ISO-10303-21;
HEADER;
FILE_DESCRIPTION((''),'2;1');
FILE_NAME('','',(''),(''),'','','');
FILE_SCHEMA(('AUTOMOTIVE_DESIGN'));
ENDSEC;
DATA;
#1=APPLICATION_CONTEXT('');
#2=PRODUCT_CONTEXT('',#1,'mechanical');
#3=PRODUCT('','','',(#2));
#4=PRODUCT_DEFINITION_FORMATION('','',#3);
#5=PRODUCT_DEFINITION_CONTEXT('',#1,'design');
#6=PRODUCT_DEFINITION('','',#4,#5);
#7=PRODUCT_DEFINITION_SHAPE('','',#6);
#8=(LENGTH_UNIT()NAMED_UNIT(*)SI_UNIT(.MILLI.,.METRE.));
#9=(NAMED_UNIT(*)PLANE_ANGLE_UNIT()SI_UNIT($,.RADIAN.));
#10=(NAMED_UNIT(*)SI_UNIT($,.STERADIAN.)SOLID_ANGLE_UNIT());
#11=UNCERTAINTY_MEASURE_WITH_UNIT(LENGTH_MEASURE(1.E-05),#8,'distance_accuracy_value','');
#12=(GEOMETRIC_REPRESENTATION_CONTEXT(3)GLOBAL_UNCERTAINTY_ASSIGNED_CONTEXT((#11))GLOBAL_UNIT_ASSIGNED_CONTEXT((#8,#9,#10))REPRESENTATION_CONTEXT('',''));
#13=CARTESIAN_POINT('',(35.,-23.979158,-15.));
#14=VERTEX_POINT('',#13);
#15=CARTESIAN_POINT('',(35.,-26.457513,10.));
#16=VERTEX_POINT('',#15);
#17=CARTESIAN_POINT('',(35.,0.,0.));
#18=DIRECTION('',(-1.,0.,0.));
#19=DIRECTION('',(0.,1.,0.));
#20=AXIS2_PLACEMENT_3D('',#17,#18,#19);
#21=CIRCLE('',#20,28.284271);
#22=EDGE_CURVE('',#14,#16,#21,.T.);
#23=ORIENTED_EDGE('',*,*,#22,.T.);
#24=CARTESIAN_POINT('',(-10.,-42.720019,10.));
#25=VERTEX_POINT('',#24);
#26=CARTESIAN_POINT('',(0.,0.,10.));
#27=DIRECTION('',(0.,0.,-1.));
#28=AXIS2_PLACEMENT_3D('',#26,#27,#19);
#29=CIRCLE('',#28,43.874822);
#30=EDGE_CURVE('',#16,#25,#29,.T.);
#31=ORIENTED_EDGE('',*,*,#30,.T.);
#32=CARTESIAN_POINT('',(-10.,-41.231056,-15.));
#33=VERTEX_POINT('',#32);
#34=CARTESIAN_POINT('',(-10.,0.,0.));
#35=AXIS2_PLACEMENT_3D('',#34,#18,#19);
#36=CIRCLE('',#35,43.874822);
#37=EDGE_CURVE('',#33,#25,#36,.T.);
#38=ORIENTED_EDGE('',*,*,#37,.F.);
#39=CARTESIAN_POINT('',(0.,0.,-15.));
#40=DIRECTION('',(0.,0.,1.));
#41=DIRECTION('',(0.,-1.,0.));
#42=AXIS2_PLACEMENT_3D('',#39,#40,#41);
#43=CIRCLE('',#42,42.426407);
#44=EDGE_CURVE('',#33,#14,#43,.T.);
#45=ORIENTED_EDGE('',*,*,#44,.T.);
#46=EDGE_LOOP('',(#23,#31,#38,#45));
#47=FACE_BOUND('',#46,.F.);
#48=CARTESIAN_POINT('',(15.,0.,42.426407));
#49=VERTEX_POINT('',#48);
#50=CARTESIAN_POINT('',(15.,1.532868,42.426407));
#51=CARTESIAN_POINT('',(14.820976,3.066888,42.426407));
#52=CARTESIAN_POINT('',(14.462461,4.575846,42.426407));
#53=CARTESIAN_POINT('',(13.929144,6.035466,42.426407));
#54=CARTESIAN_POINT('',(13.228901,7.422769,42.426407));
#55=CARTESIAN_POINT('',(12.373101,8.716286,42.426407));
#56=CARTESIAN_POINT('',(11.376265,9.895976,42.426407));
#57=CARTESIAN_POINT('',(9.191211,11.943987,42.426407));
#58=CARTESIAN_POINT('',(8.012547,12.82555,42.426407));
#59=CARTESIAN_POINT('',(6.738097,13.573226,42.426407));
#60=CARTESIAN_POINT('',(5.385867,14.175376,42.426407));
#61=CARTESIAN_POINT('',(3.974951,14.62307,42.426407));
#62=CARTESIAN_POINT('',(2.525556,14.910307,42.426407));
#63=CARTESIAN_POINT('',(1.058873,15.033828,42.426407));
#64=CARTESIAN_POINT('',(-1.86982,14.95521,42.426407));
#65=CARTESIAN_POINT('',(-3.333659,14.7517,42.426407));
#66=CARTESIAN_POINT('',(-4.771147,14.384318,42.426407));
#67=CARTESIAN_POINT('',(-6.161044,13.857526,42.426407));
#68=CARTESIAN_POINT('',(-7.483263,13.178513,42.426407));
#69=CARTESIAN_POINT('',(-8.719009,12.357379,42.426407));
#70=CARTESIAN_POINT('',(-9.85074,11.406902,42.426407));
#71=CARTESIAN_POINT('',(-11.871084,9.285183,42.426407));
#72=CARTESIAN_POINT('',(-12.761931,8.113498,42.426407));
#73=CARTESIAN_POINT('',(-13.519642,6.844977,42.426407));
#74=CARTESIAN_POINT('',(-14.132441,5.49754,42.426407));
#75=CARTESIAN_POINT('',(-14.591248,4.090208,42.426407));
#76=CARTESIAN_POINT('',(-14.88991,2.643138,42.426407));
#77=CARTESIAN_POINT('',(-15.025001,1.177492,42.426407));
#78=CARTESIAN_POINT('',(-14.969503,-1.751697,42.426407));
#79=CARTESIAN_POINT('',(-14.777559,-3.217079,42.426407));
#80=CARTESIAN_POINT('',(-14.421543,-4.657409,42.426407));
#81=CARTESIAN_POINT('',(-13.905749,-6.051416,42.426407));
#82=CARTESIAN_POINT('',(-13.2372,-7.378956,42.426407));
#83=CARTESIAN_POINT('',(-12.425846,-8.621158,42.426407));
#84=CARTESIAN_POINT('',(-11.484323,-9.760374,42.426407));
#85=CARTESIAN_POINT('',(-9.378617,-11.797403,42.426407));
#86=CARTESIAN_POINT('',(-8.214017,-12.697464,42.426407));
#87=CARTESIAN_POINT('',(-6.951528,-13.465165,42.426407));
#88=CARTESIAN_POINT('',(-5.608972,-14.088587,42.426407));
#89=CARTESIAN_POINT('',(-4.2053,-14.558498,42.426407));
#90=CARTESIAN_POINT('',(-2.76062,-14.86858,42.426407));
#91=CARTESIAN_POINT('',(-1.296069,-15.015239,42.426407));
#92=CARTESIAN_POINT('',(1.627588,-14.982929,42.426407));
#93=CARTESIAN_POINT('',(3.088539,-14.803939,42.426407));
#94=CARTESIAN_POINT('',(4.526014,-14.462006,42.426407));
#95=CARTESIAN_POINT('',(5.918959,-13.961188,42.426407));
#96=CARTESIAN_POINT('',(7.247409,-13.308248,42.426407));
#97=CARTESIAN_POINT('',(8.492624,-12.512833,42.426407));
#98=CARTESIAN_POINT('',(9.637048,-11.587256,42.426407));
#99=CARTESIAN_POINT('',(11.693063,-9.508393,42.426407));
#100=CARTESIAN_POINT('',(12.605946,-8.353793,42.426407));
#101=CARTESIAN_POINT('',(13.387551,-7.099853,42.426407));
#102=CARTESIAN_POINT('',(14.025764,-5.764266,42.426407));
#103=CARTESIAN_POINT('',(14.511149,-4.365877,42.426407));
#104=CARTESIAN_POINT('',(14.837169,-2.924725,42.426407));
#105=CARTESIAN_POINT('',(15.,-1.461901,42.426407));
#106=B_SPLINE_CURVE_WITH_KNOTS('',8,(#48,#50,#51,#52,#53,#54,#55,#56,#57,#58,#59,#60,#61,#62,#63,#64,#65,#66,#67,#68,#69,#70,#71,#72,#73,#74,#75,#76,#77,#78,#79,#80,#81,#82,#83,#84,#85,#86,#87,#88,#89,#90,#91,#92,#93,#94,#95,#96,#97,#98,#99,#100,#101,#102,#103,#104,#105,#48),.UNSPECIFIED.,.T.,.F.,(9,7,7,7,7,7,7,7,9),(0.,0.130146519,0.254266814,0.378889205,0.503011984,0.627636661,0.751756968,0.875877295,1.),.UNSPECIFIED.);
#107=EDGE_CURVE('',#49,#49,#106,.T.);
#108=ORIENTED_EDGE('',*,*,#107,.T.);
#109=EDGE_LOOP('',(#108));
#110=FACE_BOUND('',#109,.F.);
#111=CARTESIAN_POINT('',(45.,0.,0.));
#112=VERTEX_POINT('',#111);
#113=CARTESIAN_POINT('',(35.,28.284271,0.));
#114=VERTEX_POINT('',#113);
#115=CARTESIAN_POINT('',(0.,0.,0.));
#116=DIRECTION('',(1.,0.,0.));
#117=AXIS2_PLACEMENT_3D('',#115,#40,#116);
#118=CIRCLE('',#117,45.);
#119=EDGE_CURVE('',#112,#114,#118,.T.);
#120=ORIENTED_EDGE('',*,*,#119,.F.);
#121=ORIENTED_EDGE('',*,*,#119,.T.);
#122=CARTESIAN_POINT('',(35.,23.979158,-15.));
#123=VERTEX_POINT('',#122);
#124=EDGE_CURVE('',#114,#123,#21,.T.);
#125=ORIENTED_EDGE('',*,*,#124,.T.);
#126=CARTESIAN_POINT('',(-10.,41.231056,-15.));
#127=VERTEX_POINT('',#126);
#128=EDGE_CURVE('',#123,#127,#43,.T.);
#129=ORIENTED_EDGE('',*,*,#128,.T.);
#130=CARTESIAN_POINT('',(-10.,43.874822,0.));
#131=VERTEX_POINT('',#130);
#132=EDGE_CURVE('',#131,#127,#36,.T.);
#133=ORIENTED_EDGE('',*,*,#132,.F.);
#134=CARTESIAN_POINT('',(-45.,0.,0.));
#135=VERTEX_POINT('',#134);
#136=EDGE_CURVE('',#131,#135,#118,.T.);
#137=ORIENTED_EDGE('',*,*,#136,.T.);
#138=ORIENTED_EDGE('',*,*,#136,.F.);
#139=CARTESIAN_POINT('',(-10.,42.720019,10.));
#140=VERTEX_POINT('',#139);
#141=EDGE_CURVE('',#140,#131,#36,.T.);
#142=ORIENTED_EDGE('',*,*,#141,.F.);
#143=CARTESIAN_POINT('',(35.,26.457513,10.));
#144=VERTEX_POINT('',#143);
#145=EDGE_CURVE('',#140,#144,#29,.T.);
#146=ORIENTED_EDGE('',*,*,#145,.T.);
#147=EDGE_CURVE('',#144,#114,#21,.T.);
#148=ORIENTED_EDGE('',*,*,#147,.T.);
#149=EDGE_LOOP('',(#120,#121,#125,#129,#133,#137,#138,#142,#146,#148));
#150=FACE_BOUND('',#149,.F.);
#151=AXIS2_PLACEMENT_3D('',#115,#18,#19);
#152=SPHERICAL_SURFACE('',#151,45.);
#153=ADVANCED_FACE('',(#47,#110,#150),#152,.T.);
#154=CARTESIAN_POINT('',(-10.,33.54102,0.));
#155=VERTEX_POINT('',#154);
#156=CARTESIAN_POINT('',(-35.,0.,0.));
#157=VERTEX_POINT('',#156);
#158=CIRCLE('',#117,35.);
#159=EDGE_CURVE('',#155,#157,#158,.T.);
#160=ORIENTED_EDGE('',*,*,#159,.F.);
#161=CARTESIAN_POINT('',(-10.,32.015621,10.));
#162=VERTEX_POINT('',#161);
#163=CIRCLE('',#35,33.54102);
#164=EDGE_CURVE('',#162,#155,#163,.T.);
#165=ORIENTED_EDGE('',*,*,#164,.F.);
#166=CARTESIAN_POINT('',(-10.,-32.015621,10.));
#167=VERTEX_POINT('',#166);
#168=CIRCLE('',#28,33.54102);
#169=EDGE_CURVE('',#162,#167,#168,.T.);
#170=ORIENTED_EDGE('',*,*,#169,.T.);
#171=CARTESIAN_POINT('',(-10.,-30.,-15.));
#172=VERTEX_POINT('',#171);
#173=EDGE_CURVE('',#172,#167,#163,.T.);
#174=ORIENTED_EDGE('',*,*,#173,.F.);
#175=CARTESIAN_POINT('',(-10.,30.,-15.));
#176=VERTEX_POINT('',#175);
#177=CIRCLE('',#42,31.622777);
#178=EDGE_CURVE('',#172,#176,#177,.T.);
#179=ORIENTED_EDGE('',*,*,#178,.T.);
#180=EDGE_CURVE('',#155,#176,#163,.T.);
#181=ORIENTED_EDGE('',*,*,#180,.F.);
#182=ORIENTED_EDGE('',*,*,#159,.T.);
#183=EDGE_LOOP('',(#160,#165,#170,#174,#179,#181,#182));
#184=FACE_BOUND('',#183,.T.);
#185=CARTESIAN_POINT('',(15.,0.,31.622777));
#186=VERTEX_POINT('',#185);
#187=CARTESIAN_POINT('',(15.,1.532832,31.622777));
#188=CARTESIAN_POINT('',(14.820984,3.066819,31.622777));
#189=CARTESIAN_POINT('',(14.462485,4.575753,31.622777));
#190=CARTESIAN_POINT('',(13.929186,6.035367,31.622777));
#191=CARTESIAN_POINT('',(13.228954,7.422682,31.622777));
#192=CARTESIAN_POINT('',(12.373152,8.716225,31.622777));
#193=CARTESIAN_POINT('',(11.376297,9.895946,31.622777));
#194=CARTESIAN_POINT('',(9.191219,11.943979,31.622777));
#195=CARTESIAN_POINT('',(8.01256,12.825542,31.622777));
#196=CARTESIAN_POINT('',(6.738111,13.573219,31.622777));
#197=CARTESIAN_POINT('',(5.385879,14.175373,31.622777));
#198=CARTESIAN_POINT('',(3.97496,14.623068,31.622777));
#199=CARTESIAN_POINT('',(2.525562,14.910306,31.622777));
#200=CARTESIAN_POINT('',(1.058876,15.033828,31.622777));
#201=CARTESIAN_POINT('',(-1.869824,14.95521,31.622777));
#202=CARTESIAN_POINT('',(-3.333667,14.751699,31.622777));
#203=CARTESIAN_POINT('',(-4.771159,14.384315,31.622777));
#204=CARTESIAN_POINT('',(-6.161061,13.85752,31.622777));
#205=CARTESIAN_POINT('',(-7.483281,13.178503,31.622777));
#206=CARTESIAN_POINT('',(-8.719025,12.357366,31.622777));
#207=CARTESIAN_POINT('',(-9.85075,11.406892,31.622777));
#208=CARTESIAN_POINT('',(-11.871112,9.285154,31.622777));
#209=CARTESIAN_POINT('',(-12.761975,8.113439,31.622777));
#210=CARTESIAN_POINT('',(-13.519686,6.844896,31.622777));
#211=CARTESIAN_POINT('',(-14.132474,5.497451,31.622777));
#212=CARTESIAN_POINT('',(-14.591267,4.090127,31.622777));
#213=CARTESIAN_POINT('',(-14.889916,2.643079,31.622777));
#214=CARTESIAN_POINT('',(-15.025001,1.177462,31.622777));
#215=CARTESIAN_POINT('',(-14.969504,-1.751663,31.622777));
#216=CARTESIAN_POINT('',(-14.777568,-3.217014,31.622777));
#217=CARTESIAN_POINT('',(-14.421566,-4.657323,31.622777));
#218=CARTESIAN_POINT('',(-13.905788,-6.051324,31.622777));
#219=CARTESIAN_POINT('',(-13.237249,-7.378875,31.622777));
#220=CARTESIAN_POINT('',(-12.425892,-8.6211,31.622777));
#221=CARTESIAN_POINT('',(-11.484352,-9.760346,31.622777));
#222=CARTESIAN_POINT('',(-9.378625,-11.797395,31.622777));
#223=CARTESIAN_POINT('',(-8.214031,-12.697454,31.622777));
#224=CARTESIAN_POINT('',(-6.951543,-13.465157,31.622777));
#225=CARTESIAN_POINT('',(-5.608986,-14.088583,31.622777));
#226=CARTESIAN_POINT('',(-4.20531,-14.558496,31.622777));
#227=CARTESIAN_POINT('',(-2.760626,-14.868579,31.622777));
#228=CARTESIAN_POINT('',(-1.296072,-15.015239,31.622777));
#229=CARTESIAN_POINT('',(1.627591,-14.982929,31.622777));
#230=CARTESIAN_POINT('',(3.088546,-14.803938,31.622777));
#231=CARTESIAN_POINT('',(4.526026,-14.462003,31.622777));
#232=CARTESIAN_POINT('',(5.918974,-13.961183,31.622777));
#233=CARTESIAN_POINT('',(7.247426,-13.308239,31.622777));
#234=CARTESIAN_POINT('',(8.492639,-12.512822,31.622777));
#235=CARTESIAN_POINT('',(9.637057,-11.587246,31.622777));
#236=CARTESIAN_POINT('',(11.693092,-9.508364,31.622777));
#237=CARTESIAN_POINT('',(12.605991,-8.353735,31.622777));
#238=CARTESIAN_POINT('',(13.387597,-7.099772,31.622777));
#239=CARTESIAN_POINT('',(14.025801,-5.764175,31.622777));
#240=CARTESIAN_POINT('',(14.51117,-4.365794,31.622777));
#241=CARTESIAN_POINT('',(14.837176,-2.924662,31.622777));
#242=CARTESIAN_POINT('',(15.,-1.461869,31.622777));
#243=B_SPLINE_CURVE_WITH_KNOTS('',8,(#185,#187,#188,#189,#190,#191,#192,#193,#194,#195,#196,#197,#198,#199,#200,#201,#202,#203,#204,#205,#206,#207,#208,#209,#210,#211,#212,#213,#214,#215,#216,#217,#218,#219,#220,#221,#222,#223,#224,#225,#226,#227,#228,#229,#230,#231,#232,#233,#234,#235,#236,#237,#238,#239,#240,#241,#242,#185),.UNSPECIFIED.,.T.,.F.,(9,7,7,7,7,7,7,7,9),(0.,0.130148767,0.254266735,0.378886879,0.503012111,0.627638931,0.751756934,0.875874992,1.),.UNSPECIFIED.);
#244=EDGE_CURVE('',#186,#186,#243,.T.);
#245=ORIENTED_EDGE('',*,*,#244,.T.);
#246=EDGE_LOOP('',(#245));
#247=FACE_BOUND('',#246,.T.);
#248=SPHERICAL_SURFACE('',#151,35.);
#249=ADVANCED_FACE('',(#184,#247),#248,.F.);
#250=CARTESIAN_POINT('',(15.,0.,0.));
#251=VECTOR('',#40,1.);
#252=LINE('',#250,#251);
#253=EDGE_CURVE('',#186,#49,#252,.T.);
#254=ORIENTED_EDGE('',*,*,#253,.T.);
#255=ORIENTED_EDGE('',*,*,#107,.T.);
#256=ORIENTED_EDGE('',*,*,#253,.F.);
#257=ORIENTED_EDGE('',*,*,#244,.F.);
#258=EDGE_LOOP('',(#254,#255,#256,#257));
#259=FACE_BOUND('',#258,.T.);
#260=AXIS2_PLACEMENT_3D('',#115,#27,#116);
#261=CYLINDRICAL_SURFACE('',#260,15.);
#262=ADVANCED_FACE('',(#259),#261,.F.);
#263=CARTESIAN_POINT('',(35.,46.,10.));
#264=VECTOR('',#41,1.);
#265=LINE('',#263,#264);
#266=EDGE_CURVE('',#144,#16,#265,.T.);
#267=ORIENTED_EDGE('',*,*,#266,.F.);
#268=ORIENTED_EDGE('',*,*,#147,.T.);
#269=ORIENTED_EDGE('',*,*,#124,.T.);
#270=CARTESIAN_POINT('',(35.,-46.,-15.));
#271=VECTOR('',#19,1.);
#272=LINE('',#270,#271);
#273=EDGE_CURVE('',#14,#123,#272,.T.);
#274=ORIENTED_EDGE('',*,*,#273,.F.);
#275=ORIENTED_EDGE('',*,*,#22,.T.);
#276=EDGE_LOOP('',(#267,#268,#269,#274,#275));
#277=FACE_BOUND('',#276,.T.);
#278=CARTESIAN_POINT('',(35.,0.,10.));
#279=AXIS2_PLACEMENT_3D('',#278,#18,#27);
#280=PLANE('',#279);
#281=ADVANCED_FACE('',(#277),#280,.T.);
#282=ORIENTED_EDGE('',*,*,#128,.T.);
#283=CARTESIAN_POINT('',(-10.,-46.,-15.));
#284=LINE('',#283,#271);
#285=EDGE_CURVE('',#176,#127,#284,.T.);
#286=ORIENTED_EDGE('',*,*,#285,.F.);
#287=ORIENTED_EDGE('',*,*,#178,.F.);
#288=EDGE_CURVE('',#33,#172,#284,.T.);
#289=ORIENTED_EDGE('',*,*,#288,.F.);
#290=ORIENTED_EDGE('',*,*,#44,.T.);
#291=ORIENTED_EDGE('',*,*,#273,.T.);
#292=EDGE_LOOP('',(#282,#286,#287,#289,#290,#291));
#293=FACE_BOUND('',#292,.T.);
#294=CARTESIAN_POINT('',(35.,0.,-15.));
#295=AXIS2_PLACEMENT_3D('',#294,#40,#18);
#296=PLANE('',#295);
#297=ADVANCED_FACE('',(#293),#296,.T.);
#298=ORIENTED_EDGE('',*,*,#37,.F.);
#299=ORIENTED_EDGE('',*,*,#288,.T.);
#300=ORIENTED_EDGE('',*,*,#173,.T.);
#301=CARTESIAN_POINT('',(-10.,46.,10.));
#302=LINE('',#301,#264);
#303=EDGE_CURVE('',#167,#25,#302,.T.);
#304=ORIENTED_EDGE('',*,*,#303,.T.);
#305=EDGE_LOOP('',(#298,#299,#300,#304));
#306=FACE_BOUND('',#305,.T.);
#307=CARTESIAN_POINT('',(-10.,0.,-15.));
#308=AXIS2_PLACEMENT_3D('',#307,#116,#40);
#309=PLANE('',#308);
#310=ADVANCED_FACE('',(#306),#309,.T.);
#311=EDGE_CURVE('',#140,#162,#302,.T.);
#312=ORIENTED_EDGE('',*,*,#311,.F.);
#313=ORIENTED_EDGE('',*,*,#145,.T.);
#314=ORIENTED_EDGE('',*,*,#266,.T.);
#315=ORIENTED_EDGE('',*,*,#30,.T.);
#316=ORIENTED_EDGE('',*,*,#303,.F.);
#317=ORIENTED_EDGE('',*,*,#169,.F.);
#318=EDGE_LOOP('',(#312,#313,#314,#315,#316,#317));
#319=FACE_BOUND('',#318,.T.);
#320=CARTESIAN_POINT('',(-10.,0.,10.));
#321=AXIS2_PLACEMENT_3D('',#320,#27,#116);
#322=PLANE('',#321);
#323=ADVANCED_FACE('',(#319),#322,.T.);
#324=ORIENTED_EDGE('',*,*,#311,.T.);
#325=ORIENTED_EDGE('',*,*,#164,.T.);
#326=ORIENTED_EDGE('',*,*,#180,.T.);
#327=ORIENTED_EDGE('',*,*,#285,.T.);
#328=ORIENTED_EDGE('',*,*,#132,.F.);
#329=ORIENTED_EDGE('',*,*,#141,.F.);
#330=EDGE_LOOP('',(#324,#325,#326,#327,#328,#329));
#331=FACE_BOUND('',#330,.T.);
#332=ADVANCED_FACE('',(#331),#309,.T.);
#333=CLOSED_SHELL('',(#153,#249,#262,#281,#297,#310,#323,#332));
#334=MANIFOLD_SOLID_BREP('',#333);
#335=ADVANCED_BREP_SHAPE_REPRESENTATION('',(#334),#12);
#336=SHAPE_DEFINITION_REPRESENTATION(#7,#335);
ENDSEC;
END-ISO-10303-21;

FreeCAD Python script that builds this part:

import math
import FreeCAD as App
import Part
import Sketcher

V = App.Vector

doc = App.newDocument("Part")
body = doc.addObject("PartDesign::Body", "Body")

sketch1 = doc.addObject("Sketcher::SketchObject", "Sketch")
body.addObject(sketch1)
sketch1.AttachmentSupport = (doc.XY_Plane, [""])
sketch1.MapMode = "FlatFace"
sketch1.addGeometry(Part.LineSegment(V(35, 0, 0), V(45, 0, 0)), False)
sketch1.addGeometry(Part.ArcOfCircle(Part.Circle(V(0, 0, 0), V(0, 0, 1), 45), math.radians(0), math.radians(180)), False)
sketch1.addGeometry(Part.LineSegment(V(-45, 0, 0), V(-35, 0, 0)), False)
sketch1.addGeometry(Part.ArcOfCircle(Part.Circle(V(0, 0, 0), V(0, 0, 1), 35), math.radians(0), math.radians(180)), False)
sketch1.addConstraint(Sketcher.Constraint("Coincident", 0, 2, 1, 1))
sketch1.addConstraint(Sketcher.Constraint("Coincident", 1, 2, 2, 1))
sketch1.addConstraint(Sketcher.Constraint("Coincident", 2, 2, 3, 2))
sketch1.addConstraint(Sketcher.Constraint("Coincident", 3, 1, 0, 1))
sketch1.addConstraint(Sketcher.Constraint("Horizontal", 0))
sketch1.addConstraint(Sketcher.Constraint("Horizontal", 2))
sketch1.addConstraint(Sketcher.Constraint("Coincident", 1, 3, -1, 1))
sketch1.addConstraint(Sketcher.Constraint("Coincident", 3, 3, -1, 1))
sketch1.addConstraint(Sketcher.Constraint("PointOnObject", 0, 2, -1))
sketch1.addConstraint(Sketcher.Constraint("PointOnObject", 1, 2, -1))
sketch1.addConstraint(Sketcher.Constraint("Radius", 1, 45.0))
sketch1.addConstraint(Sketcher.Constraint("Radius", 3, 35.0))
revolution = doc.addObject("PartDesign::Revolution", "Revolution")
body.addObject(revolution)
revolution.Profile = sketch1
revolution.ReferenceAxis = (sketch1, ["H_Axis"])
revolution.Angle = 360

sketch2 = doc.addObject("Sketcher::SketchObject", "Sketch001")
body.addObject(sketch2)
sketch2.AttachmentSupport = (doc.XY_Plane, [""])
sketch2.MapMode = "FlatFace"
sketch2.addGeometry(Part.Circle(V(0, 0, 0), V(0, 0, 1), 15), False)
sketch2.addConstraint(Sketcher.Constraint("Coincident", 0, 3, -1, 1))
sketch2.addConstraint(Sketcher.Constraint("Diameter", 0, 30.0))
pocket1 = doc.addObject("PartDesign::Pocket", "Pocket")
body.addObject(pocket1)
pocket1.Profile = sketch2
pocket1.Type = "ThroughAll"
pocket1.Reversed = True

sketch3 = doc.addObject("Sketcher::SketchObject", "Sketch002")
body.addObject(sketch3)
sketch3.AttachmentSupport = (doc.XZ_Plane, [""])
sketch3.MapMode = "FlatFace"
sketch3.addGeometry(Part.LineSegment(V(35, 10, 0), V(35, -15, 0)), False)
sketch3.addGeometry(Part.LineSegment(V(35, -15, 0), V(-10, -15, 0)), False)
sketch3.addGeometry(Part.LineSegment(V(-10, -15, 0), V(-10, 10, 0)), False)
sketch3.addGeometry(Part.LineSegment(V(-10, 10, 0), V(35, 10, 0)), False)
sketch3.addConstraint(Sketcher.Constraint("Coincident", 0, 2, 1, 1))
sketch3.addConstraint(Sketcher.Constraint("Coincident", 1, 2, 2, 1))
sketch3.addConstraint(Sketcher.Constraint("Coincident", 2, 2, 3, 1))
sketch3.addConstraint(Sketcher.Constraint("Coincident", 3, 2, 0, 1))
sketch3.addConstraint(Sketcher.Constraint("Vertical", 0))
sketch3.addConstraint(Sketcher.Constraint("Horizontal", 1))
sketch3.addConstraint(Sketcher.Constraint("Vertical", 2))
sketch3.addConstraint(Sketcher.Constraint("Horizontal", 3))
sketch3.addConstraint(Sketcher.Constraint("DistanceX", 1, 2, 1, 1, 45.0))
sketch3.addConstraint(Sketcher.Constraint("DistanceY", 0, 2, 0, 1, 25.0))
sketch3.addConstraint(Sketcher.Constraint("DistanceX", 1, 2, -1, 1, 10.0))
sketch3.addConstraint(Sketcher.Constraint("DistanceY", -1, 1, 2, 2, 10.0))
pocket2 = doc.addObject("PartDesign::Pocket", "Pocket001")
body.addObject(pocket2)
pocket2.Profile = sketch3
pocket2.Type = "ThroughAll"
pocket2.Midplane = True

doc.recompute()
